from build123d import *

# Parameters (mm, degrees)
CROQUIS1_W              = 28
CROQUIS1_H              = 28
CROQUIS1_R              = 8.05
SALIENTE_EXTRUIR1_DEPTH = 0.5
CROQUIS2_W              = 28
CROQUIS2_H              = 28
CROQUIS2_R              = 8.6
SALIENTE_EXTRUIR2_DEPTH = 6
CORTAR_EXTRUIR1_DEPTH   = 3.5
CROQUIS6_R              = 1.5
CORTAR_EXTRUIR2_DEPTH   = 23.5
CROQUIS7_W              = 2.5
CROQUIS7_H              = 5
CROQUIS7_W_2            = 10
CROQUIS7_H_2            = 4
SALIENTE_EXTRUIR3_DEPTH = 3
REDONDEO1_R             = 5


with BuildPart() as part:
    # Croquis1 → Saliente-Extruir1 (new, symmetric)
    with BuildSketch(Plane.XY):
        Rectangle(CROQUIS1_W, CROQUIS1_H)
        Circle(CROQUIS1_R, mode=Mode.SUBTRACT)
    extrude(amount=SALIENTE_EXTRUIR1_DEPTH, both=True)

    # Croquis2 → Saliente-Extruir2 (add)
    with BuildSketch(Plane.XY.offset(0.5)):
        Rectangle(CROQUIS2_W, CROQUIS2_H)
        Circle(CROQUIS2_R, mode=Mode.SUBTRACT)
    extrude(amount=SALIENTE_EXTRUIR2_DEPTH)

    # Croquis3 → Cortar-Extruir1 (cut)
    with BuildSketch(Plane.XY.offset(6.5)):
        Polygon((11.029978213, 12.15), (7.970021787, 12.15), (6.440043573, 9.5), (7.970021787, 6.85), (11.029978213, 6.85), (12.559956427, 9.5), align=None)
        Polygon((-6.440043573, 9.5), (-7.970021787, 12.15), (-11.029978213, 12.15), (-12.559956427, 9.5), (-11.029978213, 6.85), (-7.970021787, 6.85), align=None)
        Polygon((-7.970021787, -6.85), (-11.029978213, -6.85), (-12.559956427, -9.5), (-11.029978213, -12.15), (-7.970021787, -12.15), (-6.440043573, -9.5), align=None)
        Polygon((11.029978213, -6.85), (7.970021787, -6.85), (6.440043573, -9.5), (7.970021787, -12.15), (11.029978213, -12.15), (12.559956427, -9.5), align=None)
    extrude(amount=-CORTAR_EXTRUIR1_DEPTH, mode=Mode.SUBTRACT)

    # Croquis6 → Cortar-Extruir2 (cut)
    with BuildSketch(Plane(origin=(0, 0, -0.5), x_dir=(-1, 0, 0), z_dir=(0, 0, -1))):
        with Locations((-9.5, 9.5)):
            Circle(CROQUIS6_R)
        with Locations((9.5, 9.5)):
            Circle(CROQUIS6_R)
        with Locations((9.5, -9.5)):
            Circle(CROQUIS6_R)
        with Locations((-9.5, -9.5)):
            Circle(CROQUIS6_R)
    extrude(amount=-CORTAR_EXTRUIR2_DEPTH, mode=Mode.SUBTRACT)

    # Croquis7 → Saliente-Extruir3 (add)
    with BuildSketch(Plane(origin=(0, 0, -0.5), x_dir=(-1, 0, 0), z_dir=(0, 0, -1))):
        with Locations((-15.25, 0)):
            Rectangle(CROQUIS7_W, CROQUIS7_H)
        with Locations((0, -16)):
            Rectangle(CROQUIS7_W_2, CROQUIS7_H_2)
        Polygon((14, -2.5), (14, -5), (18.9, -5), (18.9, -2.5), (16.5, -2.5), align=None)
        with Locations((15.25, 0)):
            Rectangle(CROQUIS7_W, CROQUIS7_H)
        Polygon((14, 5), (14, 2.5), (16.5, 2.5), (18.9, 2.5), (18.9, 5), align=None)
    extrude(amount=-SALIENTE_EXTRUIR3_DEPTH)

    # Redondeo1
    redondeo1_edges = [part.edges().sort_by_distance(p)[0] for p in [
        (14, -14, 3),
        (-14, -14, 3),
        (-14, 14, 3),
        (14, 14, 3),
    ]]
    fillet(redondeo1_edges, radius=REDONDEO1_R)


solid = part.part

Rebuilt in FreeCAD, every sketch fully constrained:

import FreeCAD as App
import Part
import Sketcher
from FreeCAD import Vector
Q = App.Units.Quantity


def edges_at(feature, points):
    """Names of the edges that pass closest to the given points."""
    edges = feature.Shape.Edges
    near = lambda p: min(range(len(edges)), key=lambda i: edges[i].distToShape(Part.Vertex(*p))[0])
    return sorted({f"Edge{near(p) + 1}" for p in points})


def add_polygon(sketch, points):
    """Adds a closed chain of lines whose ends are joined by coincident constraints."""
    first, n = sketch.GeometryCount, len(points)
    for a, b in zip(points, points[1:] + points[:1]):
        sketch.addGeometry(Part.LineSegment(App.Vector(*a, 0), App.Vector(*b, 0)), False)
    for i in range(n):
        sketch.addConstraint(Sketcher.Constraint("Coincident", first + i, 2, first + (i + 1) % n, 1))

doc = App.newDocument("Part")
body = doc.addObject("PartDesign::Body", "Body")

sketch1 = body.newObject("Sketcher::SketchObject", "Sketch")
sketch1.AttachmentSupport = (doc.getObject("XY_Plane"), [""])
sketch1.MapMode = "FlatFace"
add_polygon(sketch1, [(-14, 14), (-14, -14), (14, -14), (14, 14)])
sketch1.addGeometry(Part.Circle(Vector(0, 0, 0), Vector(0, 0, 1), 8), False)
sketch1.addConstraint(Sketcher.Constraint("Vertical", 0))
sketch1.addConstraint(Sketcher.Constraint("Horizontal", 1))
sketch1.addConstraint(Sketcher.Constraint("Vertical", 2))
sketch1.addConstraint(Sketcher.Constraint("Horizontal", 3))
sketch1.addConstraint(Sketcher.Constraint("Coincident", 4, 3, -1, 1))
sketch1.addConstraint(Sketcher.Constraint("Symmetric", 0, 2, 2, 2, -1, 1))
sketch1.addConstraint(Sketcher.Constraint("Equal", 3, 0))
sketch1.addConstraint(Sketcher.Constraint("Diameter", 4, 16.1))
sketch1.addConstraint(Sketcher.Constraint("DistanceX", 1, 1, 1, 2, 28.0))
pad1 = body.newObject("PartDesign::Pad", "Pad")
pad1.Profile = sketch1
pad1.Length = 1
pad1.Midplane = True

sketch2 = body.newObject("Sketcher::SketchObject", "Sketch001")
sketch2.AttachmentSupport = (doc.getObject("XY_Plane"), [""])
sketch2.MapMode = "FlatFace"
sketch2.AttachmentOffset = App.Placement(Vector(0, 0, 0.5), App.Rotation())
add_polygon(sketch2, [(-14, 14), (-14, -14), (14, -14), (14, 14)])
sketch2.addGeometry(Part.Circle(Vector(0, 0, 0), Vector(0, 0, 1), 9), False)
sketch2.addConstraint(Sketcher.Constraint("Vertical", 0))
sketch2.addConstraint(Sketcher.Constraint("Horizontal", 1))
sketch2.addConstraint(Sketcher.Constraint("Vertical", 2))
sketch2.addConstraint(Sketcher.Constraint("Horizontal", 3))
sketch2.addConstraint(Sketcher.Constraint("Coincident", 4, 3, -1, 1))
sketch2.addConstraint(Sketcher.Constraint("Symmetric", 0, 2, 2, 2, -1, 1))
sketch2.addConstraint(Sketcher.Constraint("Equal", 3, 0))
sketch2.addConstraint(Sketcher.Constraint("Diameter", 4, 17.2))
sketch2.addConstraint(Sketcher.Constraint("DistanceX", 1, 1, 1, 2, 28.0))
pad2 = body.newObject("PartDesign::Pad", "Pad001")
pad2.Profile = sketch2
pad2.Length = 6

sketch3 = body.newObject("Sketcher::SketchObject", "Sketch002")
sketch3.AttachmentSupport = (doc.getObject("XY_Plane"), [""])
sketch3.MapMode = "FlatFace"
sketch3.AttachmentOffset = App.Placement(Vector(0, 0, 6.5), App.Rotation())
add_polygon(sketch3, [(11, 12.2), (8, 12.2), (6.4, 9.5), (8, 6.8), (11, 6.8), (12.6, 9.5)])
add_polygon(sketch3, [(-6.4, 9.5), (-8, 12.2), (-11, 12.2), (-12.6, 9.5), (-11, 6.8), (-8, 6.8)])
add_polygon(sketch3, [(-8, -6.8), (-11, -6.8), (-12.6, -9.5), (-11, -12.2), (-8, -12.2), (-6.4, -9.5)])
add_polygon(sketch3, [(11, -6.8), (8, -6.8), (6.4, -9.5), (8, -12.2), (11, -12.2), (12.6, -9.5)])
sketch3.addConstraint(Sketcher.Constraint("Horizontal", 0))
sketch3.addConstraint(Sketcher.Constraint("Horizontal", 3))
sketch3.addConstraint(Sketcher.Constraint("Horizontal", 7))
sketch3.addConstraint(Sketcher.Constraint("Horizontal", 10))
sketch3.addConstraint(Sketcher.Constraint("Horizontal", 12))
sketch3.addConstraint(Sketcher.Constraint("Horizontal", 15))
sketch3.addConstraint(Sketcher.Constraint("Horizontal", 18))
sketch3.addConstraint(Sketcher.Constraint("Horizontal", 21))
sketch3.addConstraint(Sketcher.Constraint("Symmetric", 3, 2, 12, 2, -1, 1))
sketch3.addConstraint(Sketcher.Constraint("Symmetric", 4, 2, 13, 2, -1, 1))
sketch3.addConstraint(Sketcher.Constraint("Symmetric", 5, 2, 14, 2, -1, 1))
sketch3.addConstraint(Sketcher.Constraint("Symmetric", 1, 2, 16, 2, -1, 1))
sketch3.addConstraint(Sketcher.Constraint("Symmetric", 10, 2, 18, 2, -1, 1))
sketch3.addConstraint(Sketcher.Constraint("Symmetric", 11, 2, 19, 2, -1, 1))
sketch3.addConstraint(Sketcher.Constraint("Symmetric", 6, 2, 20, 2, -1, 1))
sketch3.addConstraint(Sketcher.Constraint("Symmetric", 8, 2, 22, 2, -1, 1))
sketch3.addConstraint(Sketcher.Constraint("Symmetric", 0, 2, 6, 2, -2))
sketch3.addConstraint(Sketcher.Constraint("Symmetric", 4, 2, 8, 2, -2))
sketch3.addConstraint(Sketcher.Constraint("Symmetric", 3, 2, 9, 2, -2))
sketch3.addConstraint(Sketcher.Constraint("Symmetric", 1, 2, 11, 2, -2))
sketch3.addConstraint(Sketcher.Constraint("Parallel", 1, 4))
sketch3.addConstraint(Sketcher.Constraint("Parallel", 2, 5))
sketch3.addConstraint(Sketcher.Constraint("Parallel", 5, 6))
sketch3.addConstraint(Sketcher.Constraint("Parallel", 4, 8))
sketch3.addConstraint(Sketcher.Constraint("Parallel", 8, 11))
sketch3.addConstraint(Sketcher.Constraint("Parallel", 13, 16))
sketch3.addConstraint(Sketcher.Constraint("Parallel", 14, 17))
sketch3.addConstraint(Sketcher.Constraint("Parallel", 19, 22))
sketch3.addConstraint(Sketcher.Constraint("Parallel", 20, 23))
sketch3.addConstraint(Sketcher.Constraint("Horizontal", 1, 2, 4, 2))
sketch3.addConstraint(Sketcher.Constraint("Vertical", 0, 2, 2, 2))
sketch3.addConstraint(Sketcher.Constraint("Angle", 1, Q("-120 deg")))
sketch3.addConstraint(Sketcher.Constraint("DistanceX", 6, 2, 5, 2, 19.0))
sketch3.addConstraint(Sketcher.Constraint("DistanceY", 12, 2, 7, 2, 19.0))
sketch3.addConstraint(Sketcher.Constraint("DistanceY", 2, 2, 0, 2, 5.3))
sketch3.addConstraint(Sketcher.Constraint("DistanceX", 0, 2, 0, 1, 3.059956))
pocket1 = body.newObject("PartDesign::Pocket", "Pocket")
pocket1.Profile = sketch3
pocket1.Length = 3.5

sketch4 = body.newObject("Sketcher::SketchObject", "Sketch003")
sketch4.AttachmentSupport = (doc.getObject("XY_Plane"), [""])
sketch4.MapMode = "FlatFace"
sketch4.AttachmentOffset = App.Placement(Vector(0, 0, -0.5), App.Rotation())
sketch4.addGeometry(Part.Circle(Vector(9.5, 9.5, 0), Vector(0, 0, 1), 1.5), False)
sketch4.addGeometry(Part.Circle(Vector(-9.5, 9.5, 0), Vector(0, 0, 1), 1.5), False)
sketch4.addGeometry(Part.Circle(Vector(-9.5, -9.5, 0), Vector(0, 0, 1), 1.5), False)
sketch4.addGeometry(Part.Circle(Vector(9.5, -9.5, 0), Vector(0, 0, 1), 1.5), False)
sketch4.addConstraint(Sketcher.Constraint("Equal", 0, 1))
sketch4.addConstraint(Sketcher.Constraint("Equal", 1, 2))
sketch4.addConstraint(Sketcher.Constraint("Equal", 2, 3))
sketch4.addConstraint(Sketcher.Constraint("Symmetric", 0, 3, 2, 3, -1, 1))
sketch4.addConstraint(Sketcher.Constraint("Symmetric", 1, 3, 3, 3, -1, 1))
sketch4.addConstraint(Sketcher.Constraint("Symmetric", 0, 3, 1, 3, -2))
sketch4.addConstraint(Sketcher.Constraint("Diameter", 0, 3.0))
sketch4.addConstraint(Sketcher.Constraint("DistanceX", 1, 3, 0, 3, 19.0))
sketch4.addConstraint(Sketcher.Constraint("DistanceY", 2, 3, 1, 3, 19.0))
pocket2 = body.newObject("PartDesign::Pocket", "Pocket001")
pocket2.Profile = sketch4
pocket2.Length = 23.5
pocket2.Reversed = True

sketch5 = body.newObject("Sketcher::SketchObject", "Sketch004")
sketch5.AttachmentSupport = (doc.getObject("XY_Plane"), [""])
sketch5.MapMode = "FlatFace"
sketch5.AttachmentOffset = App.Placement(Vector(0, 0, -0.5), App.Rotation())
add_polygon(sketch5, [(16.5, 2.5), (16.5, -2.5), (14, -2.5), (14, 2.5)])
add_polygon(sketch5, [(5, -14), (5, -18), (-5, -18), (-5, -14)])
add_polygon(sketch5, [(-14, -5), (-18.9, -5), (-18.9, -2.5), (-16.5, -2.5), (-16.5, 2.5), (-18.9, 2.5), (-18.9, 5), (-14, 5)])
sketch5.addConstraint(Sketcher.Constraint("Vertical", 0))
sketch5.addConstraint(Sketcher.Constraint("Horizontal", 1))
sketch5.addConstraint(Sketcher.Constraint("Vertical", 2))
sketch5.addConstraint(Sketcher.Constraint("Horizontal", 3))
sketch5.addConstraint(Sketcher.Constraint("Vertical", 4))
sketch5.addConstraint(Sketcher.Constraint("Horizontal", 5))
sketch5.addConstraint(Sketcher.Constraint("Vertical", 6))
sketch5.addConstraint(Sketcher.Constraint("Horizontal", 7))
sketch5.addConstraint(Sketcher.Constraint("Horizontal", 8))
sketch5.addConstraint(Sketcher.Constraint("Vertical", 9))
sketch5.addConstraint(Sketcher.Constraint("Horizontal", 10))
sketch5.addConstraint(Sketcher.Constraint("Vertical", 11))
sketch5.addConstraint(Sketcher.Constraint("Horizontal", 12))
sketch5.addConstraint(Sketcher.Constraint("Vertical", 13))
sketch5.addConstraint(Sketcher.Constraint("Horizontal", 14))
sketch5.addConstraint(Sketcher.Constraint("Vertical", 15))
sketch5.addConstraint(Sketcher.Constraint("Symmetric", 3, 2, 10, 2, -1, 1))
sketch5.addConstraint(Sketcher.Constraint("Symmetric", 9, 2, 12, 2, -1))
sketch5.addConstraint(Sketcher.Constraint("Horizontal", 1, 2, 9, 2))
sketch5.addConstraint(Sketcher.Constraint("Equal", 3, 9))
sketch5.addConstraint(Sketcher.Constraint("Equal", 9, 13))
sketch5.addConstraint(Sketcher.Constraint("Equal", 7, 15))
sketch5.addConstraint(Sketcher.Constraint("DistanceX", 5, 2, 5, 1, 10.0))
sketch5.addConstraint(Sketcher.Constraint("DistanceY", 0, 2, 0, 1, 5.0))
sketch5.addConstraint(Sketcher.Constraint("DistanceY", 4, 2, 4, 1, 4.0))
sketch5.addConstraint(Sketcher.Constraint("DistanceX", 8, 2, 8, 1, 4.9))
sketch5.addConstraint(Sketcher.Constraint("DistanceX", 10, 1, 10, 2, 2.4))
sketch5.addConstraint(Sketcher.Constraint("DistanceX", -1, 1, 1, 2, 14.0))
sketch5.addConstraint(Sketcher.Constraint("DistanceX", -1, 1, 4, 2, 5.0))
sketch5.addConstraint(Sketcher.Constraint("DistanceY", 4, 2, -1, 1, 18.0))
pad3 = body.newObject("PartDesign::Pad", "Pad002")
pad3.Profile = sketch5
pad3.Length = 3
doc.recompute()

fillet = body.newObject("PartDesign::Fillet", "Fillet")
fillet.Base = (pad3, edges_at(pad3, [
    (14, -14, 3),
    (-14, -14, 3),
    (-14, 14, 3),
    (14, 14, 3),
]))
fillet.Radius = 5

doc.recompute()
